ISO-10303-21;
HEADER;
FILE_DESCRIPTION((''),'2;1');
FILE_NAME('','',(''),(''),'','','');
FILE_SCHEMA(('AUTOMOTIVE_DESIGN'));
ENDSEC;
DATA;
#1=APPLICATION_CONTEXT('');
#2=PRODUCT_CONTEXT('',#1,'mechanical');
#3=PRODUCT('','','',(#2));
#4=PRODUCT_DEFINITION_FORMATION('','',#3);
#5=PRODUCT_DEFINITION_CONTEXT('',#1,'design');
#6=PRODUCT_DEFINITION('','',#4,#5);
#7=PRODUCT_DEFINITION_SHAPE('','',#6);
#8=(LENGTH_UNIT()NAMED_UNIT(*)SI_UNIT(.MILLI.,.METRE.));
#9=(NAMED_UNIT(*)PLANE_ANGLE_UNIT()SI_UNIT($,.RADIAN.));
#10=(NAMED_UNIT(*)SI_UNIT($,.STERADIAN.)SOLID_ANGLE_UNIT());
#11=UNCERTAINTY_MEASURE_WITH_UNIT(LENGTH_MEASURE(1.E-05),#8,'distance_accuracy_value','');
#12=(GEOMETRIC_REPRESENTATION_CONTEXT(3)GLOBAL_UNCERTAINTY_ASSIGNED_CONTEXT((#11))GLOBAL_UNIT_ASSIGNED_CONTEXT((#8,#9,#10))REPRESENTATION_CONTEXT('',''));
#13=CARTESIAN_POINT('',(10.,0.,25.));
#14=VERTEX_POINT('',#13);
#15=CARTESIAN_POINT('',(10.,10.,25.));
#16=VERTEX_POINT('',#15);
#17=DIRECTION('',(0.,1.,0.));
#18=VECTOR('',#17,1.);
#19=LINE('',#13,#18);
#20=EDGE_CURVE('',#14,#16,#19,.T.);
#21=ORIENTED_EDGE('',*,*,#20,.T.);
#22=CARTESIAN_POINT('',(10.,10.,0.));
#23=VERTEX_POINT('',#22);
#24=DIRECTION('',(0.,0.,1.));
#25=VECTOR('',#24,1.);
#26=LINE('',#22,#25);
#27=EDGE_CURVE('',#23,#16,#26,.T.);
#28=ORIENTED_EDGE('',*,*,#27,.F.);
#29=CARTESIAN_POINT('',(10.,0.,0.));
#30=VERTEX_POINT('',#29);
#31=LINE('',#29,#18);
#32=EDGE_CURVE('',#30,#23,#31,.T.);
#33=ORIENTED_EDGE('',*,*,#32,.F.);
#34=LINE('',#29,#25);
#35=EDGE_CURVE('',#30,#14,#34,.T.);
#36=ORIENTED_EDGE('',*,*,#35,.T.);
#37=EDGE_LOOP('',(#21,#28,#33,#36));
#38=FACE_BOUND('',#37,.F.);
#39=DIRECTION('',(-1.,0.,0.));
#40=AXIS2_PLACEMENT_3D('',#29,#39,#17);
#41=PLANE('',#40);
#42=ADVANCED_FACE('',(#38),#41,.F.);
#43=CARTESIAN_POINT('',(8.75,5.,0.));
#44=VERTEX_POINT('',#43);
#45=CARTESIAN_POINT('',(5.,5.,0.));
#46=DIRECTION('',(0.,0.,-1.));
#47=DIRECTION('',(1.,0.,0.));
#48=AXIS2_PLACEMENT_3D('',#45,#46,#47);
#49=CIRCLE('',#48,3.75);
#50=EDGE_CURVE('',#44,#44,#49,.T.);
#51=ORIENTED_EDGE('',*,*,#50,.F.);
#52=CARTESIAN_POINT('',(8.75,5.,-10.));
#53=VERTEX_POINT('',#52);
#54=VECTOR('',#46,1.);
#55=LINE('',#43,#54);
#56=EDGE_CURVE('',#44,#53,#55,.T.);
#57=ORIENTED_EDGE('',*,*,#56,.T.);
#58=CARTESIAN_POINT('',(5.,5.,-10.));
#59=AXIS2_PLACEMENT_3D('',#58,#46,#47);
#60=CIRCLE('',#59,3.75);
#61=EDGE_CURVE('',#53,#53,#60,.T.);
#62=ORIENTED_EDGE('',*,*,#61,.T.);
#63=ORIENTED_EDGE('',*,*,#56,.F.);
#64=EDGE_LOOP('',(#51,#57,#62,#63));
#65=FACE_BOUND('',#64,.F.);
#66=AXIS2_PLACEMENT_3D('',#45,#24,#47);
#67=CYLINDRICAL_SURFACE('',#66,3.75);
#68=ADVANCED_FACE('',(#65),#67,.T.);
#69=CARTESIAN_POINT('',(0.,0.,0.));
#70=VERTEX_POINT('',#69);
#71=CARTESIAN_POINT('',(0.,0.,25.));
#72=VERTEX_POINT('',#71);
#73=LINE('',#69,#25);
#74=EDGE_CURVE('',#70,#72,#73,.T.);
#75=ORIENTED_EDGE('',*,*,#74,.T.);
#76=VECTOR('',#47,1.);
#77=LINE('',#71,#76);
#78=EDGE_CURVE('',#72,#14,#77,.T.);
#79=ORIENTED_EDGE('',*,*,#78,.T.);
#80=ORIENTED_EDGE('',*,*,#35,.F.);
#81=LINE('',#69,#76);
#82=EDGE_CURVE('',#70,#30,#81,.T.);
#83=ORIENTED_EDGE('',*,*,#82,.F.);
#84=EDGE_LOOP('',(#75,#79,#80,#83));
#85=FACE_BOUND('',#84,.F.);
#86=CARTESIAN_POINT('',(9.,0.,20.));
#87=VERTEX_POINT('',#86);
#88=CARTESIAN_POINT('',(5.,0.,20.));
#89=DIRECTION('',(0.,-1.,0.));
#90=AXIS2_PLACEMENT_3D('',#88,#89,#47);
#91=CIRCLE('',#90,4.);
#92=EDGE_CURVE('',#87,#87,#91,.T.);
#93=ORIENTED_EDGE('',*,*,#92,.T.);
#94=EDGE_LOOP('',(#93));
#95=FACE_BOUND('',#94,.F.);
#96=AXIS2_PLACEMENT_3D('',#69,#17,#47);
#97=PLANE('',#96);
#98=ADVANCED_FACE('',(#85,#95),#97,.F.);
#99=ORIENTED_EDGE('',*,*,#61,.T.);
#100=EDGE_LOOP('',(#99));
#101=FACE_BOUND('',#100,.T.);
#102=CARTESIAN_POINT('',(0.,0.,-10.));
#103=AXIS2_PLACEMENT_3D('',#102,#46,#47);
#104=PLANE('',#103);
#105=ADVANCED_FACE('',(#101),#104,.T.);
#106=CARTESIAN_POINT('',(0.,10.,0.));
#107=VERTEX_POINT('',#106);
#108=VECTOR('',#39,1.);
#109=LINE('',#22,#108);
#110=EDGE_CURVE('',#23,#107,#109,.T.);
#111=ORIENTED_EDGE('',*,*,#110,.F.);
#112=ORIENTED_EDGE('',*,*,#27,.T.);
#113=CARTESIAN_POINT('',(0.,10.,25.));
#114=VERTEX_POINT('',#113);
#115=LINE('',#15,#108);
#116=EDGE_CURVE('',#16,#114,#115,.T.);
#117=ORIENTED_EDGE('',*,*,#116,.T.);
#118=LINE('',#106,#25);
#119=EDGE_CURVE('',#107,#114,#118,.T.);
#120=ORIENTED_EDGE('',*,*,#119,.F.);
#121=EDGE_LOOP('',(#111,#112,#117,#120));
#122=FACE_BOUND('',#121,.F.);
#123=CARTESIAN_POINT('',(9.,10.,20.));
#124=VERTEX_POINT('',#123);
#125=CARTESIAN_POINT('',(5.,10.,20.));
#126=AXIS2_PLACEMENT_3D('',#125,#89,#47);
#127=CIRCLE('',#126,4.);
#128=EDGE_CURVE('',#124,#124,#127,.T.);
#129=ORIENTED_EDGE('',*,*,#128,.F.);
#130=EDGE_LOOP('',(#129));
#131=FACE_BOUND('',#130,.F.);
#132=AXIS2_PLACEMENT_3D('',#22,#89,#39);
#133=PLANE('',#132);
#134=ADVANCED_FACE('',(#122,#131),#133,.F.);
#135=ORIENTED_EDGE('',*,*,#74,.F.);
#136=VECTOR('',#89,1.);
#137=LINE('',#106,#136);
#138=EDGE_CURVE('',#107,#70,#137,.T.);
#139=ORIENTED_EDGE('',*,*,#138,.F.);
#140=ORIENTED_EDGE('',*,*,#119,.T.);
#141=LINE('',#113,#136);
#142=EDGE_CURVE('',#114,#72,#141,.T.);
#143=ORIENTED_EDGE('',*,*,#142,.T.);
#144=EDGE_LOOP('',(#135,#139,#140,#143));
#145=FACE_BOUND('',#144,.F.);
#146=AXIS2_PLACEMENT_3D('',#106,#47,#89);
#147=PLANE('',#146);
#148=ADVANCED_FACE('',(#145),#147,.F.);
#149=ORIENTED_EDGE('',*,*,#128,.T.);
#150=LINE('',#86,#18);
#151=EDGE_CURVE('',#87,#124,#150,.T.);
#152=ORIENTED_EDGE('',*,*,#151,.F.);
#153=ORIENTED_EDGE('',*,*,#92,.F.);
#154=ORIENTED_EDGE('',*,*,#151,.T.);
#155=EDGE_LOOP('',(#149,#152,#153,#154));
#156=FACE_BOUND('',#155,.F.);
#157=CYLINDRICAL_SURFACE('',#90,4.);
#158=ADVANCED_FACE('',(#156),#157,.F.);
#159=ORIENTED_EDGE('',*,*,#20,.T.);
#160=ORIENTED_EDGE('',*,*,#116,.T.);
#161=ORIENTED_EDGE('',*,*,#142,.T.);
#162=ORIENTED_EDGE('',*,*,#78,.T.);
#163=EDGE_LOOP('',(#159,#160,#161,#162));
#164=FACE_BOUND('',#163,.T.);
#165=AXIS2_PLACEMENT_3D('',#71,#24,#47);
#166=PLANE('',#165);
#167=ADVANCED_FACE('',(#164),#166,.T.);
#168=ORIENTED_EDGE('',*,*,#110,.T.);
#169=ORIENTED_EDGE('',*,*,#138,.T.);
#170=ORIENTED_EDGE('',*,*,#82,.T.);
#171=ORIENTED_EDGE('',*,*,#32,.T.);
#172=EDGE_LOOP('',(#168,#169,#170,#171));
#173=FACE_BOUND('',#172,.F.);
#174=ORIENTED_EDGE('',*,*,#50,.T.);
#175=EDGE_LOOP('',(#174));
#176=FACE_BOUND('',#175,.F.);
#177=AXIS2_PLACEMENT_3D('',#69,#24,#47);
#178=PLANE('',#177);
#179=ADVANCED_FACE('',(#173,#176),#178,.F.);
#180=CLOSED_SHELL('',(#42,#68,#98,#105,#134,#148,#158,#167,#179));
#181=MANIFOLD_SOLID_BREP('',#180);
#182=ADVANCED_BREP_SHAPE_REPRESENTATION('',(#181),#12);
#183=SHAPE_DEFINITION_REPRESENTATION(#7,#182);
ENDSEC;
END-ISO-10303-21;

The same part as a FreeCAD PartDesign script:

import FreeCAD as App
import Part
import Sketcher
from FreeCAD import Vector
Q = App.Units.Quantity

doc = App.newDocument("Part")
params = doc.addObject("Spreadsheet::Sheet", "Params")
for row, (alias, value) in enumerate([
    ("sketch1_width", "10 mm"),
    ("pad1_length", "25 mm"),
    ("sketch2_diameter", "8 mm"),
    ("pocket1_length", "10 mm"),
    ("sketch3_diameter", "7.5 mm"),
    ("pad2_length", "10 mm"),
], start=1):
    params.set(f"A{row}", alias)
    params.set(f"B{row}", "=" + value)
    params.setAlias(f"B{row}", alias)

body = doc.addObject("PartDesign::Body", "Body")

sketch1 = doc.addObject("Sketcher::SketchObject", "Sketch")
body.addObject(sketch1)
sketch1.AttachmentSupport = (doc.XY_Plane, [""])
sketch1.MapMode = "FlatFace"
sketch1.addGeometry([
    Part.LineSegment(Vector(0, 10, 0), Vector(0, 0, 0)),
    Part.LineSegment(Vector(0, 0, 0), Vector(10, 0, 0)),
    Part.LineSegment(Vector(10, 0, 0), Vector(10, 10, 0)),
    Part.LineSegment(Vector(10, 10, 0), Vector(0, 10, 0)),
], False)
sketch1.addConstraint([
    Sketcher.Constraint("Coincident", 0, 2, 1, 1),
    Sketcher.Constraint("Coincident", 1, 2, 2, 1),
    Sketcher.Constraint("Coincident", 2, 2, 3, 1),
    Sketcher.Constraint("Coincident", 3, 2, 0, 1),
    Sketcher.Constraint("Vertical", 0),
    Sketcher.Constraint("Horizontal", 1),
    Sketcher.Constraint("Vertical", 2),
    Sketcher.Constraint("Horizontal", 3),
    Sketcher.Constraint("Coincident", 0, 2, -1, 1),
    Sketcher.Constraint("Equal", 3, 0),
    Sketcher.Constraint("DistanceX", 1, 1, 1, 2, Q("10 mm")),
])
sketch1.setExpression("Constraints[10]", "Params.sketch1_width")
pad1 = doc.addObject("PartDesign::Pad", "Pad")
body.addObject(pad1)
pad1.Profile = sketch1
pad1.setExpression("Length", "Params.pad1_length")

sketch2 = doc.addObject("Sketcher::SketchObject", "Sketch001")
body.addObject(sketch2)
sketch2.AttachmentSupport = (doc.XZ_Plane, [""])
sketch2.MapMode = "FlatFace"
sketch2.addGeometry(Part.Circle(Vector(5, 20, 0), Vector(0, 0, 1), 4), False)
sketch2.addConstraint([
    Sketcher.Constraint("Diameter", 0, Q("8 mm")),
    Sketcher.Constraint("DistanceX", -1, 1, 0, 3, Q("5 mm")),
    Sketcher.Constraint("DistanceY", -1, 1, 0, 3, Q("20 mm")),
])
sketch2.setExpression("Constraints[0]", "Params.sketch2_diameter")
pocket1 = doc.addObject("PartDesign::Pocket", "Pocket")
body.addObject(pocket1)
pocket1.Profile = sketch2
pocket1.setExpression("Length", "Params.pocket1_length")

sketch3 = doc.addObject("Sketcher::SketchObject", "Sketch002")
body.addObject(sketch3)
sketch3.AttachmentSupport = (doc.XY_Plane, [""])
sketch3.MapMode = "FlatFace"
sketch3.addGeometry(Part.Circle(Vector(5, 5, 0), Vector(0, 0, 1), 3.8), False)
sketch3.addConstraint([
    Sketcher.Constraint("Diameter", 0, Q("7.5 mm")),
    Sketcher.Constraint("DistanceX", -1, 1, 0, 3, Q("5 mm")),
    Sketcher.Constraint("DistanceY", -1, 1, 0, 3, Q("5 mm")),
])
sketch3.setExpression("Constraints[0]", "Params.sketch3_diameter")
pad2 = doc.addObject("PartDesign::Pad", "Pad001")
body.addObject(pad2)
pad2.Profile = sketch3
pad2.setExpression("Length", "Params.pad2_length")
pad2.Reversed = True

doc.recompute()
